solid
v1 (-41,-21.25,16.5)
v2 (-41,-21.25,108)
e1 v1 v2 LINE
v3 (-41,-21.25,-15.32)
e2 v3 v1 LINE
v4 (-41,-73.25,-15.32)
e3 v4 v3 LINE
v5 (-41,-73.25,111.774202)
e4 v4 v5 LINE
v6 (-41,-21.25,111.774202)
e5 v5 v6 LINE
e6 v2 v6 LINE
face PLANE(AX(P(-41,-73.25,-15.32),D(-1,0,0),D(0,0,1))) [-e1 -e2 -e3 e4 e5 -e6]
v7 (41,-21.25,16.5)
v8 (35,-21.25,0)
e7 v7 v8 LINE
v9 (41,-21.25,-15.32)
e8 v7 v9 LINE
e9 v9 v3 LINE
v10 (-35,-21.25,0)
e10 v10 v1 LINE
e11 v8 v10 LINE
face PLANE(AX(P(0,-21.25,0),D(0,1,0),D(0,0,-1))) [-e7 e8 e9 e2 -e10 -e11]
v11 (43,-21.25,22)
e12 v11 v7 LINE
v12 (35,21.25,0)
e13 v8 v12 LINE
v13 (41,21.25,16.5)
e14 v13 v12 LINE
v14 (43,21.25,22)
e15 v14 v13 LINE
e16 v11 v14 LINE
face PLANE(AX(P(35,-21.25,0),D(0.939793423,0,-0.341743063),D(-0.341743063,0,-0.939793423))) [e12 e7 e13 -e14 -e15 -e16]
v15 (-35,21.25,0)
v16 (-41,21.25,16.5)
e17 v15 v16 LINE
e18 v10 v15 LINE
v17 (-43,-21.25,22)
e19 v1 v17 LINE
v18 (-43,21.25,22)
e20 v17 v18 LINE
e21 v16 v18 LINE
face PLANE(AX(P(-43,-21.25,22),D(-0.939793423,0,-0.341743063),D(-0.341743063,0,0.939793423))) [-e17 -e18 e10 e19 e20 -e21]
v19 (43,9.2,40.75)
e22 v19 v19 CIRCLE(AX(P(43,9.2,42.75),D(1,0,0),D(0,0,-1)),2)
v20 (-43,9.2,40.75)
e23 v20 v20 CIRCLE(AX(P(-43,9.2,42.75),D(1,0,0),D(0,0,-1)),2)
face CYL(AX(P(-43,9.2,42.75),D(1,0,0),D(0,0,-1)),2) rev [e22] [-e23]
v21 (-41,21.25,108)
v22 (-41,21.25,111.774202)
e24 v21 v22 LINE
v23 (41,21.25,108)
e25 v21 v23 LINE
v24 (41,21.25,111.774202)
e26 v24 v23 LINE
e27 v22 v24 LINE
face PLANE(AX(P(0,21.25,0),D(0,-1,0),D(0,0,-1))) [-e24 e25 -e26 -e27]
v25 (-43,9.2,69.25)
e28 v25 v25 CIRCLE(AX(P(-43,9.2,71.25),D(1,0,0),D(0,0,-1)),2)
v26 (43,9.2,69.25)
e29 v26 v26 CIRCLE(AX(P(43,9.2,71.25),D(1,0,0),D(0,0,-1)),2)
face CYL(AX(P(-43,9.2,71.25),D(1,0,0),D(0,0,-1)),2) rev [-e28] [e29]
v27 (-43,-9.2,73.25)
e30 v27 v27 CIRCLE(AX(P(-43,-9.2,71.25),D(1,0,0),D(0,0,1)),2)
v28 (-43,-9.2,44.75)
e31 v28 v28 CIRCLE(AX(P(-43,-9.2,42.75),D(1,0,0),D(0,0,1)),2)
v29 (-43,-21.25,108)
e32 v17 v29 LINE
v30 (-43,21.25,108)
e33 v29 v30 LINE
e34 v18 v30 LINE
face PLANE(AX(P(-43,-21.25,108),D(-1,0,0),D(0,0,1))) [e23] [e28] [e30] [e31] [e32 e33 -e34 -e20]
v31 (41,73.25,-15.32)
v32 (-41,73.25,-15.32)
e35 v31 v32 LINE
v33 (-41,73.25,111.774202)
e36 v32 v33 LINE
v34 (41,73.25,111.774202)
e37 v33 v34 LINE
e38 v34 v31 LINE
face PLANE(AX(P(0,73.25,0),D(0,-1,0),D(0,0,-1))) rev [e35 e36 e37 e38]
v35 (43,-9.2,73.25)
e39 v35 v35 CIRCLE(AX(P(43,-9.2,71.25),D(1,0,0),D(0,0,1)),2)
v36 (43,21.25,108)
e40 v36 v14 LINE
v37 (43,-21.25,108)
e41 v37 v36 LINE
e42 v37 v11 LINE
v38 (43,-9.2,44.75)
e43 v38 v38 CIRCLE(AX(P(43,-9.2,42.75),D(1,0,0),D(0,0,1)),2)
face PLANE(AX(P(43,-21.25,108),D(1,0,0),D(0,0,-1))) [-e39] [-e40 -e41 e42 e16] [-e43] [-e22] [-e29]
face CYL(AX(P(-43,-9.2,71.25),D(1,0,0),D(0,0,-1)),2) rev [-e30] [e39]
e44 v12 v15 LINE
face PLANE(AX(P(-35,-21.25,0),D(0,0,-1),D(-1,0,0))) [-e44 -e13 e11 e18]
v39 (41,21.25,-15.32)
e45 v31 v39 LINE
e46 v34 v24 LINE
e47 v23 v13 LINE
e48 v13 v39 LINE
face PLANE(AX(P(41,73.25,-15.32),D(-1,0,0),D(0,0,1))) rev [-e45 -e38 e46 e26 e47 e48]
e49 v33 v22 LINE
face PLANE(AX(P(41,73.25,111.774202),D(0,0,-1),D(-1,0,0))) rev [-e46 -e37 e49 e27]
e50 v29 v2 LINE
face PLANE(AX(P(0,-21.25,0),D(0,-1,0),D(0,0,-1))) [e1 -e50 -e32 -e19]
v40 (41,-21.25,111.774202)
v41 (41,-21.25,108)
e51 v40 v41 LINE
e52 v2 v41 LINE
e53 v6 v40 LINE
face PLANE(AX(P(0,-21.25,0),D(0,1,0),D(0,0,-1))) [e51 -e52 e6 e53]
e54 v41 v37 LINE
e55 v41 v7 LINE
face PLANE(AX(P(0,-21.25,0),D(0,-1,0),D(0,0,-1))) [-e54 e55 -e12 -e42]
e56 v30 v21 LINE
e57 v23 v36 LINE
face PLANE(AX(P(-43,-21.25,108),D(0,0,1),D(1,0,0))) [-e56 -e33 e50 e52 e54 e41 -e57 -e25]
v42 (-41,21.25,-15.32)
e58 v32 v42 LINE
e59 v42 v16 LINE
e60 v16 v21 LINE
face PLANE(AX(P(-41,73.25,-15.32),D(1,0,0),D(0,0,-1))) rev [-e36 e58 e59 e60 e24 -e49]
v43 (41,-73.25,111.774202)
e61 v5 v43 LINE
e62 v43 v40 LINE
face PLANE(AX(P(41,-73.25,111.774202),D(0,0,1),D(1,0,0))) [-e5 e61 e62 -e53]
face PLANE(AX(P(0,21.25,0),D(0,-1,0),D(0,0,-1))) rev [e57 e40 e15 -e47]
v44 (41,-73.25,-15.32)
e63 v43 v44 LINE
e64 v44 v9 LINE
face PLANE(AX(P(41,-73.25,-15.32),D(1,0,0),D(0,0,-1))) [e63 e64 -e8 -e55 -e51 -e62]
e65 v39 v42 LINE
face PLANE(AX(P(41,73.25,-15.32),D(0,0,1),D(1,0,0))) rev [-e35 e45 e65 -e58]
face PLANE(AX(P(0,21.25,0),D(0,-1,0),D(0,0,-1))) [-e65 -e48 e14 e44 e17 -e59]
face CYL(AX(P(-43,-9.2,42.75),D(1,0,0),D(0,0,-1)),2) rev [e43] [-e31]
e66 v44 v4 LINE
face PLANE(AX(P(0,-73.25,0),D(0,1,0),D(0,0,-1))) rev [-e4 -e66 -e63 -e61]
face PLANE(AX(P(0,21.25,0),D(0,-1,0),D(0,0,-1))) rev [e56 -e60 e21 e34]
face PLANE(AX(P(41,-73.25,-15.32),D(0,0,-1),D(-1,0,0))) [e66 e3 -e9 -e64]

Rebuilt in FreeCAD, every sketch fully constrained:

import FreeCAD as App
import Part
import Sketcher
from FreeCAD import Vector
Q = App.Units.Quantity


def add_polygon(sketch, points):
    """Adds a closed chain of lines whose ends are joined by coincident constraints."""
    first, n = sketch.GeometryCount, len(points)
    for a, b in zip(points, points[1:] + points[:1]):
        sketch.addGeometry(Part.LineSegment(App.Vector(*a, 0), App.Vector(*b, 0)), False)
    for i in range(n):
        sketch.addConstraint(Sketcher.Constraint("Coincident", first + i, 2, first + (i + 1) % n, 1))

doc = App.newDocument("Part")
body = doc.addObject("PartDesign::Body", "Body")

sketch1 = body.newObject("Sketcher::SketchObject", "Sketch")
sketch1.AttachmentSupport = (doc.getObject("XZ_Plane"), [""])
sketch1.MapMode = "FlatFace"
add_polygon(sketch1, [(-35, 0), (-43, 22), (-43, 108), (43, 108), (43, 22), (35, 0)])
sketch1.addConstraint(Sketcher.Constraint("Vertical", 1))
sketch1.addConstraint(Sketcher.Constraint("Horizontal", 2))
sketch1.addConstraint(Sketcher.Constraint("Vertical", 3))
sketch1.addConstraint(Sketcher.Constraint("Horizontal", 5))
sketch1.addConstraint(Sketcher.Constraint("Symmetric", 4, 2, 5, 2, -1, 1))
sketch1.addConstraint(Sketcher.Constraint("Symmetric", 0, 2, 3, 2, -2))
sketch1.addConstraint(Sketcher.Constraint("Equal", 2, 1))
sketch1.addConstraint(Sketcher.Constraint("DistanceX", 2, 1, 2, 2, Q("86 mm")))
sketch1.addConstraint(Sketcher.Constraint("DistanceX", 5, 2, 5, 1, Q("70 mm")))
sketch1.addConstraint(Sketcher.Constraint("DistanceY", -1, 1, 0, 2, Q("22 mm")))
pad1 = body.newObject("PartDesign::Pad", "Pad")
pad1.Profile = sketch1
pad1.Type = "TwoLengths"
pad1.Length = 21.25
pad1.Length2 = 21.25
pad1.Reversed = True

sketch2 = body.newObject("Sketcher::SketchObject", "Sketch001")
sketch2.AttachmentSupport = (doc.getObject("YZ_Plane"), [""])
sketch2.MapMode = "FlatFace"
sketch2.AttachmentOffset = App.Placement(Vector(0, 0, 43), App.Rotation())
sketch2.addGeometry(Part.Circle(Vector(9.2, 71.2, 0), Vector(0, 0, 1), 2), False)
sketch2.addGeometry(Part.Circle(Vector(9.2, 42.8, 0), Vector(0, 0, 1), 2), False)
sketch2.addGeometry(Part.Circle(Vector(-9.2, 42.8, 0), Vector(0, 0, 1), 2), False)
sketch2.addGeometry(Part.Circle(Vector(-9.2, 71.2, 0), Vector(0, 0, 1), 2), False)
sketch2.addConstraint(Sketcher.Constraint("Equal", 0, 1))
sketch2.addConstraint(Sketcher.Constraint("Equal", 1, 2))
sketch2.addConstraint(Sketcher.Constraint("Equal", 2, 3))
sketch2.addConstraint(Sketcher.Constraint("Symmetric", 1, 3, 2, 3, -2))
sketch2.addConstraint(Sketcher.Constraint("Symmetric", 0, 3, 3, 3, -2))
sketch2.addConstraint(Sketcher.Constraint("Vertical", 0, 3, 1, 3))
sketch2.addConstraint(Sketcher.Constraint("Diameter", 0, Q("4 mm")))
sketch2.addConstraint(Sketcher.Constraint("DistanceX", -1, 1, 0, 3, Q("9.2 mm")))
sketch2.addConstraint(Sketcher.Constraint("DistanceY", 1, 3, 0, 3, Q("28.5 mm")))
sketch2.addConstraint(Sketcher.Constraint("DistanceY", -1, 1, 0, 3, Q("71.25 mm")))
pocket1 = body.newObject("PartDesign::Pocket", "Pocket")
pocket1.Profile = sketch2
pocket1.Type = "ThroughAll"

sketch3 = body.newObject("Sketcher::SketchObject", "Sketch002")
sketch3.AttachmentSupport = (doc.getObject("XZ_Plane"), [""])
sketch3.MapMode = "FlatFace"
sketch3.AttachmentOffset = App.Placement(Vector(0, 0, -21.25), App.Rotation())
add_polygon(sketch3, [(-41, -15), (-41, 112), (41, 112), (41, -15)])
sketch3.addConstraint(Sketcher.Constraint("Vertical", 0))
sketch3.addConstraint(Sketcher.Constraint("Horizontal", 1))
sketch3.addConstraint(Sketcher.Constraint("Vertical", 2))
sketch3.addConstraint(Sketcher.Constraint("Horizontal", 3))
sketch3.addConstraint(Sketcher.Constraint("DistanceX", 1, 1, 1, 2, Q("82 mm")))
sketch3.addConstraint(Sketcher.Constraint("DistanceX", 0, 2, -1, 1, Q("41 mm")))
sketch3.addConstraint(Sketcher.Constraint("DistanceY", 2, 2, -1, 1, Q("15.32 mm")))
sketch3.addConstraint(Sketcher.Constraint("DistanceY", 0, 1, 0, 2, Q("127.094202 mm")))
pad2 = body.newObject("PartDesign::Pad", "Pad001")
pad2.Profile = sketch3
pad2.Length = 52
pad2.Reversed = True
doc.recompute()

mirrored = body.newObject("PartDesign::Mirrored", "Mirrored")
mirrored.Originals = [pad2]
mirrored.MirrorPlane = (doc.getObject("XZ_Plane"), [""])
body.Tip = mirrored

doc.recompute()
